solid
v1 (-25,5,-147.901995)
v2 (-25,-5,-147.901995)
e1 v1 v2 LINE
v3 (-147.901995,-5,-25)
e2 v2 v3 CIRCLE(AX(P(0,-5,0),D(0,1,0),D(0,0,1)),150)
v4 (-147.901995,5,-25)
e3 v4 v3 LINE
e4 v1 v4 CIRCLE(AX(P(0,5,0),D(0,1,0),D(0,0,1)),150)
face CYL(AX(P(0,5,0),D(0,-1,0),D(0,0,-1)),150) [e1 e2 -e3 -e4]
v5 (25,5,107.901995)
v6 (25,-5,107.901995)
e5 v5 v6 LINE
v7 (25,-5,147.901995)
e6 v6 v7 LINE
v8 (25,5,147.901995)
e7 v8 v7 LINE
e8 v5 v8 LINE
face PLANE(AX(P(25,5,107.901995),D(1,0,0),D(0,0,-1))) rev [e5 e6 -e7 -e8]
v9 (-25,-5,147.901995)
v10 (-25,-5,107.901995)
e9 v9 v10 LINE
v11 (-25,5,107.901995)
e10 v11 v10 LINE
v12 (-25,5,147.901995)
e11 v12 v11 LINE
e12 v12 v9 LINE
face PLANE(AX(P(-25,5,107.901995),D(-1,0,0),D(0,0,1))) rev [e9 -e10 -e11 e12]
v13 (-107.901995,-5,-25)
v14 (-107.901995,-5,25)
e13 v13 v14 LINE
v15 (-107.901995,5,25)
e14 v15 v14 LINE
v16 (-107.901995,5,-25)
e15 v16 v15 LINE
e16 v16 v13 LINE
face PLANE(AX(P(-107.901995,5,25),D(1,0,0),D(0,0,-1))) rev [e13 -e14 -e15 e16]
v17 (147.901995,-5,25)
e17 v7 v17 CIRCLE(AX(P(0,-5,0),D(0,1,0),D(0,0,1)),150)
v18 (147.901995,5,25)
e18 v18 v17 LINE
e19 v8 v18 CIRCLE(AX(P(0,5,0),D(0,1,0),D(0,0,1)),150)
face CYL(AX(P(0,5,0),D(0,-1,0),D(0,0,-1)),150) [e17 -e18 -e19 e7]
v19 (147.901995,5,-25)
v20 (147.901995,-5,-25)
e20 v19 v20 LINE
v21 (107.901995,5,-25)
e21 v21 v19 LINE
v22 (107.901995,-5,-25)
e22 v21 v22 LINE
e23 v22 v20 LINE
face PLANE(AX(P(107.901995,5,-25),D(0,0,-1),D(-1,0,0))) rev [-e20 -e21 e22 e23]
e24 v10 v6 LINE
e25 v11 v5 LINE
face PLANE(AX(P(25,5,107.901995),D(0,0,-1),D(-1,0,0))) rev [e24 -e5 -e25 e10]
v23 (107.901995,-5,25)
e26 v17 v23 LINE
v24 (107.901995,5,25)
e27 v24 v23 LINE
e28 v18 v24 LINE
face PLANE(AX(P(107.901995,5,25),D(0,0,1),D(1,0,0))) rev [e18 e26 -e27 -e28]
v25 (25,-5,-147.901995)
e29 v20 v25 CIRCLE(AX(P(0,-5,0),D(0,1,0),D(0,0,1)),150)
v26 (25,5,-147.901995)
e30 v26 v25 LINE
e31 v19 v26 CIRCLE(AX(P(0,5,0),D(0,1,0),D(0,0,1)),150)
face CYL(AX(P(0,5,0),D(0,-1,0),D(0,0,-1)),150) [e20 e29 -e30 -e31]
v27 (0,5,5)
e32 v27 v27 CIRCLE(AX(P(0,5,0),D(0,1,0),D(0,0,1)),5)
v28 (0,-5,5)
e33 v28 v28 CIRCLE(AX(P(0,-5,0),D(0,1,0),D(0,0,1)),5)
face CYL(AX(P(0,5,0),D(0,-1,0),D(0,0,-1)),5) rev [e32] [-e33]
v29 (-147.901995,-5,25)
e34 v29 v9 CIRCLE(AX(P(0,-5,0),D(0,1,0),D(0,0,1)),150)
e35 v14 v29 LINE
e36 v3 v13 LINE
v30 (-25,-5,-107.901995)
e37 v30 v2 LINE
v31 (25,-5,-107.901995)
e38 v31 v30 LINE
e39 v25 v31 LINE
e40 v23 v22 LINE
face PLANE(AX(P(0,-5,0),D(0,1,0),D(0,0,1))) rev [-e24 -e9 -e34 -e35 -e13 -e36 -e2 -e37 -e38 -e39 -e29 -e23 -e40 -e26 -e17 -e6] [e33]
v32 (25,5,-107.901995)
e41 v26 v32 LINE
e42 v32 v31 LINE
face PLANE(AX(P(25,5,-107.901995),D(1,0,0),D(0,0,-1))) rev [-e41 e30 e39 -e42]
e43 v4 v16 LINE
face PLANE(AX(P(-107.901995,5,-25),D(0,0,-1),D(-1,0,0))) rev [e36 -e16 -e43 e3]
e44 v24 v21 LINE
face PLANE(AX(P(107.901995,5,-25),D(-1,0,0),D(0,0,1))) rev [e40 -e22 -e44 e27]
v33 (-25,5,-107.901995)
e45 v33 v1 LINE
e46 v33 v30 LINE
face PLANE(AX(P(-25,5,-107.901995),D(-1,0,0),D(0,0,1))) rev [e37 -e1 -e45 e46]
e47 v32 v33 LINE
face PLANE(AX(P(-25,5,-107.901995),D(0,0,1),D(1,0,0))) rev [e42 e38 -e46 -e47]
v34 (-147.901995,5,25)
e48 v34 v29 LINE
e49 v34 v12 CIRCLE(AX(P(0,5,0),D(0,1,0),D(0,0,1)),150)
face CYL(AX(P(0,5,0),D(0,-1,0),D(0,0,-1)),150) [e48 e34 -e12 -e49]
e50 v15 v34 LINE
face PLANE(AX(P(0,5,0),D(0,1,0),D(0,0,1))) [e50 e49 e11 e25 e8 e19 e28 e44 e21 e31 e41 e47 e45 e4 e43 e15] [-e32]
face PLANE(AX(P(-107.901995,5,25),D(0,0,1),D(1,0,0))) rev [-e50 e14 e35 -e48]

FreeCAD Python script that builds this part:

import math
import FreeCAD as App
import Part
import Sketcher

V = App.Vector
Q = App.Units.Quantity

doc = App.newDocument("Part")
body = doc.addObject("PartDesign::Body", "Body")

# Sketch on XZ plane
sketch1 = body.newObject("Sketcher::SketchObject", "Sketch")
sketch1.AttachmentSupport = (doc.getObject("XZ_Plane"), [""])
sketch1.MapMode = "FlatFace"
sketch1.addGeometry(Part.LineSegment(V(108, -25, 0), V(148, -25, 0)), False)
sketch1.addGeometry(Part.ArcOfCircle(Part.Circle(V(0, 0, 0), V(0, 0, 1), 150), math.radians(-80), math.radians(-10)), False)
sketch1.addGeometry(Part.LineSegment(V(25, -148, 0), V(25, -108, 0)), False)
sketch1.addGeometry(Part.LineSegment(V(25, -108, 0), V(-25, -108, 0)), False)
sketch1.addGeometry(Part.LineSegment(V(-25, -108, 0), V(-25, -148, 0)), False)
sketch1.addGeometry(Part.ArcOfCircle(Part.Circle(V(0, 0, 0), V(0, 0, 1), 150), math.radians(-170), math.radians(-100)), False)
sketch1.addGeometry(Part.LineSegment(V(-148, -25, 0), V(-108, -25, 0)), False)
sketch1.addGeometry(Part.LineSegment(V(-108, -25, 0), V(-108, 25, 0)), False)
sketch1.addGeometry(Part.LineSegment(V(-108, 25, 0), V(-148, 25, 0)), False)
sketch1.addGeometry(Part.ArcOfCircle(Part.Circle(V(0, 0, 0), V(0, 0, 1), 150), math.radians(100), math.radians(170)), False)
sketch1.addGeometry(Part.LineSegment(V(-25, 148, 0), V(-25, 108, 0)), False)
sketch1.addGeometry(Part.LineSegment(V(-25, 108, 0), V(25, 108, 0)), False)
sketch1.addGeometry(Part.LineSegment(V(25, 108, 0), V(25, 148, 0)), False)
sketch1.addGeometry(Part.ArcOfCircle(Part.Circle(V(0, 0, 0), V(0, 0, 1), 150), math.radians(10), math.radians(80)), False)
sketch1.addGeometry(Part.LineSegment(V(148, 25, 0), V(108, 25, 0)), False)
sketch1.addGeometry(Part.LineSegment(V(108, 25, 0), V(108, -25, 0)), False)
sketch1.addGeometry(Part.Circle(V(0, 0, 0), V(0, 0, 1), 5), False)
sketch1.addConstraint(Sketcher.Constraint("Coincident", 0, 2, 1, 2))
sketch1.addConstraint(Sketcher.Constraint("Coincident", 1, 1, 2, 1))
sketch1.addConstraint(Sketcher.Constraint("Coincident", 2, 2, 3, 1))
sketch1.addConstraint(Sketcher.Constraint("Coincident", 3, 2, 4, 1))
sketch1.addConstraint(Sketcher.Constraint("Coincident", 4, 2, 5, 2))
sketch1.addConstraint(Sketcher.Constraint("Coincident", 5, 1, 6, 1))
sketch1.addConstraint(Sketcher.Constraint("Coincident", 6, 2, 7, 1))
sketch1.addConstraint(Sketcher.Constraint("Coincident", 7, 2, 8, 1))
sketch1.addConstraint(Sketcher.Constraint("Coincident", 8, 2, 9, 2))
sketch1.addConstraint(Sketcher.Constraint("Coincident", 9, 1, 10, 1))
sketch1.addConstraint(Sketcher.Constraint("Coincident", 10, 2, 11, 1))
sketch1.addConstraint(Sketcher.Constraint("Coincident", 11, 2, 12, 1))
sketch1.addConstraint(Sketcher.Constraint("Coincident", 12, 2, 13, 2))
sketch1.addConstraint(Sketcher.Constraint("Coincident", 13, 1, 14, 1))
sketch1.addConstraint(Sketcher.Constraint("Coincident", 14, 2, 15, 1))
sketch1.addConstraint(Sketcher.Constraint("Coincident", 15, 2, 0, 1))
sketch1.addConstraint(Sketcher.Constraint("Horizontal", 0))
sketch1.addConstraint(Sketcher.Constraint("Vertical", 2))
sketch1.addConstraint(Sketcher.Constraint("Horizontal", 3))
sketch1.addConstraint(Sketcher.Constraint("Vertical", 4))
sketch1.addConstraint(Sketcher.Constraint("Horizontal", 6))
sketch1.addConstraint(Sketcher.Constraint("Vertical", 7))
sketch1.addConstraint(Sketcher.Constraint("Horizontal", 8))
sketch1.addConstraint(Sketcher.Constraint("Vertical", 10))
sketch1.addConstraint(Sketcher.Constraint("Horizontal", 11))
sketch1.addConstraint(Sketcher.Constraint("Vertical", 12))
sketch1.addConstraint(Sketcher.Constraint("Horizontal", 14))
sketch1.addConstraint(Sketcher.Constraint("Vertical", 15))
sketch1.addConstraint(Sketcher.Constraint("Coincident", 1, 3, -1, 1))
sketch1.addConstraint(Sketcher.Constraint("Coincident", 5, 3, -1, 1))
sketch1.addConstraint(Sketcher.Constraint("Coincident", 9, 3, -1, 1))
sketch1.addConstraint(Sketcher.Constraint("Coincident", 13, 3, -1, 1))
sketch1.addConstraint(Sketcher.Constraint("Coincident", 16, 3, -1, 1))
sketch1.addConstraint(Sketcher.Constraint("Equal", 1, 5))
sketch1.addConstraint(Sketcher.Constraint("Equal", 5, 9))
sketch1.addConstraint(Sketcher.Constraint("Equal", 9, 13))
sketch1.addConstraint(Sketcher.Constraint("Symmetric", 2, 2, 10, 2, -1, 1))
sketch1.addConstraint(Sketcher.Constraint("Symmetric", 6, 2, 14, 2, -1, 1))
sketch1.addConstraint(Sketcher.Constraint("Horizontal", 1, 1, 4, 2))
sketch1.addConstraint(Sketcher.Constraint("Horizontal", 0, 2, 5, 1))
sketch1.addConstraint(Sketcher.Constraint("Horizontal", 9, 1, 12, 2))
sketch1.addConstraint(Sketcher.Constraint("Horizontal", 8, 2, 13, 1))
sketch1.addConstraint(Sketcher.Constraint("Equal", 14, 2))
sketch1.addConstraint(Sketcher.Constraint("Equal", 11, 7))
sketch1.addConstraint(Sketcher.Constraint("Diameter", 16, Q("10 mm")))
sketch1.addConstraint(Sketcher.Constraint("Radius", 1, Q("150 mm")))
sketch1.addConstraint(Sketcher.Constraint("DistanceX", 0, 1, 0, 2, Q("40 mm")))
sketch1.addConstraint(Sketcher.Constraint("DistanceX", 3, 2, 3, 1, Q("50 mm")))
pad1 = body.newObject("PartDesign::Pad", "Pad")
pad1.Profile = sketch1
pad1.Length = 10
pad1.Midplane = True

doc.recompute()
